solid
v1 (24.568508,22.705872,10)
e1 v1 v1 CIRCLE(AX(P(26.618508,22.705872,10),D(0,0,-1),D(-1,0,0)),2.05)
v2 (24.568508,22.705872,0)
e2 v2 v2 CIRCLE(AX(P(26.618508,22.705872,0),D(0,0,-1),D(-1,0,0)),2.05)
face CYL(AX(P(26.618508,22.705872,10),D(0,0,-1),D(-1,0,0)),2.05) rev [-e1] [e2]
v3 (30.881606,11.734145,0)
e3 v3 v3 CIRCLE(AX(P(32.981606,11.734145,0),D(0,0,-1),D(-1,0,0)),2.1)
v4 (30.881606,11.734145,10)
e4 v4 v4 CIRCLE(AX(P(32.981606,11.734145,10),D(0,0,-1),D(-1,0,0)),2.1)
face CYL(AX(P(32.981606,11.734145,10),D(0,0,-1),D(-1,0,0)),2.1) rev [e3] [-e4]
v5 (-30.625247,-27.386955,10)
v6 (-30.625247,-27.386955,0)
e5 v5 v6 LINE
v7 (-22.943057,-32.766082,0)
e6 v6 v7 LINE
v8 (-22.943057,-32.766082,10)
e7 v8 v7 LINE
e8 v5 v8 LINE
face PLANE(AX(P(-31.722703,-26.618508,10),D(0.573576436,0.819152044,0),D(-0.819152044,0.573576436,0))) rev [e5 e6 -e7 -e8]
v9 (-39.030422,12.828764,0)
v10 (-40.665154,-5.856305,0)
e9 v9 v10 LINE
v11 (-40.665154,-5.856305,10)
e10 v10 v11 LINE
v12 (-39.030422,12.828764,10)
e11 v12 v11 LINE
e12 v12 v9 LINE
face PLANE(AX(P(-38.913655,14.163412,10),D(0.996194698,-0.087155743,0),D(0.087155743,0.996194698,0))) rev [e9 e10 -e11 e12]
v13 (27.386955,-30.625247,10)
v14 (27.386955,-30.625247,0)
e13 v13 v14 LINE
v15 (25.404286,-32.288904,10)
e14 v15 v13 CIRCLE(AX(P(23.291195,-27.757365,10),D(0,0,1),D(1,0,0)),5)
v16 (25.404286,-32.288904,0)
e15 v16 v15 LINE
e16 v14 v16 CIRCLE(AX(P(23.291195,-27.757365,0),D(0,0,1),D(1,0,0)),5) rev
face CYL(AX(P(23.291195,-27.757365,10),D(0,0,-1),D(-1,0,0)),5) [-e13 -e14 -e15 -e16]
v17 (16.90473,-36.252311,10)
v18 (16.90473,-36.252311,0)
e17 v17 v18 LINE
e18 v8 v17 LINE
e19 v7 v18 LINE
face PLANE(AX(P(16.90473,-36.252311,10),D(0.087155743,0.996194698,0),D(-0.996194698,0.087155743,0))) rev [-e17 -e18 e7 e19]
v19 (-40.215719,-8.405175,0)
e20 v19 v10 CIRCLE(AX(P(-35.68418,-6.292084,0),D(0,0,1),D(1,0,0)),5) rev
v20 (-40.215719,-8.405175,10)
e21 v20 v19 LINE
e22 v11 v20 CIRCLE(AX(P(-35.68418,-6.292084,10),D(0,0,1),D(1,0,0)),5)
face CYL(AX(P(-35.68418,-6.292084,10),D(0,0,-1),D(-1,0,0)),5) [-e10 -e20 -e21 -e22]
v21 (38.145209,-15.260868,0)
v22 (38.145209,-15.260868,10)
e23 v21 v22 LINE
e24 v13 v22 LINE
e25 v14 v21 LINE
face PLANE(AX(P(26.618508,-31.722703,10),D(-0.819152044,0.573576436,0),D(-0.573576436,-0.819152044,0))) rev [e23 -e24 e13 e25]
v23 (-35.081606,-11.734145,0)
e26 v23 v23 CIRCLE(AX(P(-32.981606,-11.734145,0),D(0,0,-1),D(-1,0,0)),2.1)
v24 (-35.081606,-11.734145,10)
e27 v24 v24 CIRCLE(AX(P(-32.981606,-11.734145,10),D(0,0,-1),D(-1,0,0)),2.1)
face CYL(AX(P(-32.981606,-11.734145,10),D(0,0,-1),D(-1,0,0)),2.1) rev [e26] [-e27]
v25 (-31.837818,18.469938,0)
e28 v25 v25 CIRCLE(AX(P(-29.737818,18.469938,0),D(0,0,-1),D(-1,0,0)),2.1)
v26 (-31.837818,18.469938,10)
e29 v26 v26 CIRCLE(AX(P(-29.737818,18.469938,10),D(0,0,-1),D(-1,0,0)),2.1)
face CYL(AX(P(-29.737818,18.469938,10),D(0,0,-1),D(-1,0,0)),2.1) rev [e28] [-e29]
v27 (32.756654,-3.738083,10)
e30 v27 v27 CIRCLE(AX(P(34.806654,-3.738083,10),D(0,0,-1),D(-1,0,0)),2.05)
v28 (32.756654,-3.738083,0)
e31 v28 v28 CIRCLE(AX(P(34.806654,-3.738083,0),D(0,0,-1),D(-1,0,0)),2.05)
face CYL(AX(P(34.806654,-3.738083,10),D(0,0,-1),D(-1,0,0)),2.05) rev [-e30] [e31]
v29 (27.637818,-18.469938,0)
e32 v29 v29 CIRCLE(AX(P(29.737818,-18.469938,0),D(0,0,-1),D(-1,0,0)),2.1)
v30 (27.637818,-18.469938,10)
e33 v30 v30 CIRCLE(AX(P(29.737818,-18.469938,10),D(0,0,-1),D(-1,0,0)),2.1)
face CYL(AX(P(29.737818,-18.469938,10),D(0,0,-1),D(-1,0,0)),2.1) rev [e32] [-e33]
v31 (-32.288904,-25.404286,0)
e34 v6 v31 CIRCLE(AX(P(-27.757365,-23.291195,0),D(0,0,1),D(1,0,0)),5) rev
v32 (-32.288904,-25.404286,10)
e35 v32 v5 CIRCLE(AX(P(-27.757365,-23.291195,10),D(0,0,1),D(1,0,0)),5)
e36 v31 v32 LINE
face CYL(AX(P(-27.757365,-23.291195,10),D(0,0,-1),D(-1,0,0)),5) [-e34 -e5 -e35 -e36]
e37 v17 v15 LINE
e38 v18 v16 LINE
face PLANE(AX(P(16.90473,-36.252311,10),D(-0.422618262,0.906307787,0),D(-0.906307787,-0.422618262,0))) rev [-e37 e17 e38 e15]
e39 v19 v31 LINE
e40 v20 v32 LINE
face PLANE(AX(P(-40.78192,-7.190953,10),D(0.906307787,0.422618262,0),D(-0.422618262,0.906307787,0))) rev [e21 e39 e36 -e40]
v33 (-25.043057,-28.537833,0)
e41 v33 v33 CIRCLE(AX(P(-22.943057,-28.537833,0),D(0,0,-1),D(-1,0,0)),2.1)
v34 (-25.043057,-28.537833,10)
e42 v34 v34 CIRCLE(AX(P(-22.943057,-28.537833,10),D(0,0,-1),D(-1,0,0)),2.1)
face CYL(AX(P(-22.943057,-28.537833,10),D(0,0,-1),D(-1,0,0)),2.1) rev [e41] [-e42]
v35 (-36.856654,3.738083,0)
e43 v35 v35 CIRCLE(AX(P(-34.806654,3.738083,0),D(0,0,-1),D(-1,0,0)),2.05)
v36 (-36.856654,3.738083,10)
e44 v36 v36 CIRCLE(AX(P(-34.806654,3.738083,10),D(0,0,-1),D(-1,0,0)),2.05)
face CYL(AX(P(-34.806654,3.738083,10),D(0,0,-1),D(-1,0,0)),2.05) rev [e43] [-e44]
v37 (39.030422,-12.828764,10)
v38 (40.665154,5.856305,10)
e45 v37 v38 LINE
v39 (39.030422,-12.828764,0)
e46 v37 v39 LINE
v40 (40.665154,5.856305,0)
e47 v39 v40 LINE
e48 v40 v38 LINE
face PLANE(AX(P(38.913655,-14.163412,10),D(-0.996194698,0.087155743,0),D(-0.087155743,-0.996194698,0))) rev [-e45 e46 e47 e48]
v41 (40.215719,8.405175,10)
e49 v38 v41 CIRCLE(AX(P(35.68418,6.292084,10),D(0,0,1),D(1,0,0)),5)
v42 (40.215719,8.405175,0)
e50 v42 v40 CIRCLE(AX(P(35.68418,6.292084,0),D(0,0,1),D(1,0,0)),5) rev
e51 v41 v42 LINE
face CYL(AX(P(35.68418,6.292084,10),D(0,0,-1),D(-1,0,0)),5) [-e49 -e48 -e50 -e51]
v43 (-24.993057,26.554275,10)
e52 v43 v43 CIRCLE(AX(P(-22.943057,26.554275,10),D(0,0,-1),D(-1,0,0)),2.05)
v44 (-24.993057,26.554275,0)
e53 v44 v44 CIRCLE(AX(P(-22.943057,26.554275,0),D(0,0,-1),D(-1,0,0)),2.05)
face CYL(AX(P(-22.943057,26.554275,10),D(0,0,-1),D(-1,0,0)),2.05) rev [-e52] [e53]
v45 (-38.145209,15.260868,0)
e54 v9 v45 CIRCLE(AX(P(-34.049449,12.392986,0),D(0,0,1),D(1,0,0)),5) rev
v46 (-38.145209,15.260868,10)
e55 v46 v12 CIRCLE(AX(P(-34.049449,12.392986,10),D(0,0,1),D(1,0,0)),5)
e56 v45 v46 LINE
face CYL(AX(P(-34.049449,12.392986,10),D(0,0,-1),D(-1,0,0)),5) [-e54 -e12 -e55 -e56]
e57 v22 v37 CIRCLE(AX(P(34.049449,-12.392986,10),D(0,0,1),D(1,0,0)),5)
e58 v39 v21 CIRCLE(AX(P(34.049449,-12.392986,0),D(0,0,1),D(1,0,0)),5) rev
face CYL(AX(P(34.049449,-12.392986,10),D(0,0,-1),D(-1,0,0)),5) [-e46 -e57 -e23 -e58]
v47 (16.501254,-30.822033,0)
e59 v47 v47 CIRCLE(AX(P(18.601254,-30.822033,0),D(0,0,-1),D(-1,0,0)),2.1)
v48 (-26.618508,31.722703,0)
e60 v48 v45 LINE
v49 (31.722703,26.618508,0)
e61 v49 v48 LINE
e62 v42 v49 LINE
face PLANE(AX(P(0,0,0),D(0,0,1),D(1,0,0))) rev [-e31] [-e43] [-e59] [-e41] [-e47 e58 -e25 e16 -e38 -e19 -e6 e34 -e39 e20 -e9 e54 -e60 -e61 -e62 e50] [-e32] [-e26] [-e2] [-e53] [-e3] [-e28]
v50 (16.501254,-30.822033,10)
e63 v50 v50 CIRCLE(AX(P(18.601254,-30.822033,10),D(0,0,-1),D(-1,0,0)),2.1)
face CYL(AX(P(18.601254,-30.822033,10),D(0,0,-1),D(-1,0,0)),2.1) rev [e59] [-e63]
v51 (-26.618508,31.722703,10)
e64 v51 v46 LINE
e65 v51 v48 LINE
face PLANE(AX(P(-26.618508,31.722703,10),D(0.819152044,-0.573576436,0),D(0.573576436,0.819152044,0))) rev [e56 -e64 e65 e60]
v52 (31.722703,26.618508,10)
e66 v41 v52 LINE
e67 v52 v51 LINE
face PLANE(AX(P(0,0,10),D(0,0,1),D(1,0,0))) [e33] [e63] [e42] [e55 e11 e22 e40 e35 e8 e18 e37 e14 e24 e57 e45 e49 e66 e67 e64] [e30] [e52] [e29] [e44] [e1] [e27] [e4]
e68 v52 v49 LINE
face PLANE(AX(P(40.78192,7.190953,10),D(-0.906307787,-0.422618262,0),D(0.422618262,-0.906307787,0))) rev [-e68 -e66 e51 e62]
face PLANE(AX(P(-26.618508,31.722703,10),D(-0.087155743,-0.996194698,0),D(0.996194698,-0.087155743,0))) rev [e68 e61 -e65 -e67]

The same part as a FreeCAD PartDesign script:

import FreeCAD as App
import Part
import Sketcher
Q = App.Units.Quantity


def edges_at(feature, points):
    """Names of the edges that pass closest to the given points."""
    edges = feature.Shape.Edges
    near = lambda p: min(range(len(edges)), key=lambda i: edges[i].distToShape(Part.Vertex(*p))[0])
    return sorted({f"Edge{near(p) + 1}" for p in points})


def add_polygon(sketch, points):
    """Adds a closed chain of lines whose ends are joined by coincident constraints."""
    first, n = sketch.GeometryCount, len(points)
    for a, b in zip(points, points[1:] + points[:1]):
        sketch.addGeometry(Part.LineSegment(App.Vector(*a, 0), App.Vector(*b, 0)), False)
    for i in range(n):
        sketch.addConstraint(Sketcher.Constraint("Coincident", first + i, 2, first + (i + 1) % n, 1))

doc = App.newDocument("Part")
body = doc.addObject("PartDesign::Body", "Body")

sketch1 = body.newObject("Sketcher::SketchObject", "Sketch")
sketch1.AttachmentSupport = (doc.getObject("XY_Plane"), [""])
sketch1.MapMode = "FlatFace"
add_polygon(sketch1, [(17, -36), (27, -32), (39, -14), (41, 7), (32, 27), (-27, 32), (-39, 14), (-41, -7), (-32, -27), (-23, -33)])
sketch1.addConstraint([
    Sketcher.Constraint("Symmetric", 0, 2, 4, 2, -1, 1),
    Sketcher.Constraint("Symmetric", 1, 2, 5, 2, -1, 1),
    Sketcher.Constraint("Symmetric", 2, 2, 6, 2, -1, 1),
    Sketcher.Constraint("Symmetric", 3, 2, 7, 2, -1, 1),
    Sketcher.Constraint("Perpendicular", 0, 3),
    Sketcher.Constraint("Perpendicular", 2, 4),
    Sketcher.Constraint("Perpendicular", 5, 8),
    Sketcher.Constraint("Perpendicular", 6, 9),
    Sketcher.Constraint("Equal", 1, 2),
    Sketcher.Constraint("Equal", 2, 3),
    Sketcher.Constraint("Equal", 0, 8),
    Sketcher.Constraint("Angle", 0, Q("25 deg")),
    Sketcher.Constraint("Angle", 1, Q("55 deg")),
    Sketcher.Constraint("Distance", 9, Q("40 mm")),
    Sketcher.Constraint("DistanceX", 5, 2, 8, 2, Q("15.970598 mm")),
    Sketcher.Constraint("DistanceY", 9, 2, 1, 2, Q("22.088899 mm")),
])
pad1 = body.newObject("PartDesign::Pad", "Pad")
pad1.Profile = sketch1
pad1.Length = 10

sketch2 = body.newObject("Sketcher::SketchObject", "Sketch001")
sketch2.AttachmentSupport = (doc.getObject("XY_Plane"), [""])
sketch2.MapMode = "FlatFace"
sketch2.addGeometry([
    Part.Circle(App.Vector(26.6, 22.7, 0), App.Vector(0, 0, 1), 2),
    Part.Circle(App.Vector(-22.9, 26.6, 0), App.Vector(0, 0, 1), 2),
    Part.Circle(App.Vector(-29.7, 18.5, 0), App.Vector(0, 0, 1), 2.1),
    Part.Circle(App.Vector(-34.8, 3.7, 0), App.Vector(0, 0, 1), 2),
    Part.Circle(App.Vector(-33, -11.7, 0), App.Vector(0, 0, 1), 2.1),
    Part.Circle(App.Vector(-22.9, -28.5, 0), App.Vector(0, 0, 1), 2.1),
    Part.Circle(App.Vector(18.6, -30.8, 0), App.Vector(0, 0, 1), 2.1),
    Part.Circle(App.Vector(29.7, -18.5, 0), App.Vector(0, 0, 1), 2.1),
    Part.Circle(App.Vector(34.8, -3.7, 0), App.Vector(0, 0, 1), 2),
    Part.Circle(App.Vector(33, 11.7, 0), App.Vector(0, 0, 1), 2.1),
], False)
sketch2.addConstraint([
    Sketcher.Constraint("Equal", 0, 1),
    Sketcher.Constraint("Equal", 1, 3),
    Sketcher.Constraint("Equal", 2, 4),
    Sketcher.Constraint("Equal", 4, 5),
    Sketcher.Constraint("Equal", 5, 6),
    Sketcher.Constraint("Equal", 6, 7),
    Sketcher.Constraint("Equal", 3, 8),
    Sketcher.Constraint("Equal", 7, 9),
    Sketcher.Constraint("Symmetric", 2, 3, 7, 3, -1, 1),
    Sketcher.Constraint("Symmetric", 3, 3, 8, 3, -1, 1),
    Sketcher.Constraint("Symmetric", 4, 3, 9, 3, -1, 1),
    Sketcher.Constraint("Vertical", 1, 3, 5, 3),
    Sketcher.Constraint("Diameter", 0, Q("4.1 mm")),
    Sketcher.Constraint("Diameter", 2, Q("4.2 mm")),
    Sketcher.Constraint("DistanceY", 6, 3, 5, 3, Q("2.2842 mm")),
    Sketcher.Constraint("DistanceX", 6, 3, 8, 3, Q("16.205401 mm")),
    Sketcher.Constraint("DistanceX", -1, 1, 0, 3, Q("26.618508 mm")),
    Sketcher.Constraint("DistanceY", -1, 1, 0, 3, Q("22.705872 mm")),
    Sketcher.Constraint("DistanceX", 2, 3, -1, 1, Q("29.737818 mm")),
    Sketcher.Constraint("DistanceY", -1, 1, 2, 3, Q("18.469938 mm")),
    Sketcher.Constraint("DistanceX", 2, 3, 1, 3, Q("6.794761 mm")),
    Sketcher.Constraint("DistanceY", 3, 3, 1, 3, Q("22.816192 mm")),
    Sketcher.Constraint("DistanceY", 3, 3, 0, 3, Q("18.967788 mm")),
    Sketcher.Constraint("DistanceX", 3, 3, 4, 3, Q("1.825049 mm")),
    Sketcher.Constraint("DistanceX", 4, 3, 1, 3, Q("10.038548 mm")),
    Sketcher.Constraint("DistanceY", 4, 3, 1, 3, Q("38.28842 mm")),
    Sketcher.Constraint("DistanceY", 5, 3, 4, 3, Q("16.803688 mm")),
])
pocket1 = body.newObject("PartDesign::Pocket", "Pocket")
pocket1.Profile = sketch2
pocket1.Type = "ThroughAll"
pocket1.Reversed = True
doc.recompute()

fillet = body.newObject("PartDesign::Fillet", "Fillet")
fillet.Base = (pocket1, edges_at(pocket1, [
    (40.782, 7.191, 5),
    (38.914, -14.163, 5),
    (26.619, -31.723, 5),
    (-31.723, -26.619, 5),
    (-40.782, -7.191, 5),
    (-38.914, 14.163, 5),
]))
fillet.Radius = 5

doc.recompute()
